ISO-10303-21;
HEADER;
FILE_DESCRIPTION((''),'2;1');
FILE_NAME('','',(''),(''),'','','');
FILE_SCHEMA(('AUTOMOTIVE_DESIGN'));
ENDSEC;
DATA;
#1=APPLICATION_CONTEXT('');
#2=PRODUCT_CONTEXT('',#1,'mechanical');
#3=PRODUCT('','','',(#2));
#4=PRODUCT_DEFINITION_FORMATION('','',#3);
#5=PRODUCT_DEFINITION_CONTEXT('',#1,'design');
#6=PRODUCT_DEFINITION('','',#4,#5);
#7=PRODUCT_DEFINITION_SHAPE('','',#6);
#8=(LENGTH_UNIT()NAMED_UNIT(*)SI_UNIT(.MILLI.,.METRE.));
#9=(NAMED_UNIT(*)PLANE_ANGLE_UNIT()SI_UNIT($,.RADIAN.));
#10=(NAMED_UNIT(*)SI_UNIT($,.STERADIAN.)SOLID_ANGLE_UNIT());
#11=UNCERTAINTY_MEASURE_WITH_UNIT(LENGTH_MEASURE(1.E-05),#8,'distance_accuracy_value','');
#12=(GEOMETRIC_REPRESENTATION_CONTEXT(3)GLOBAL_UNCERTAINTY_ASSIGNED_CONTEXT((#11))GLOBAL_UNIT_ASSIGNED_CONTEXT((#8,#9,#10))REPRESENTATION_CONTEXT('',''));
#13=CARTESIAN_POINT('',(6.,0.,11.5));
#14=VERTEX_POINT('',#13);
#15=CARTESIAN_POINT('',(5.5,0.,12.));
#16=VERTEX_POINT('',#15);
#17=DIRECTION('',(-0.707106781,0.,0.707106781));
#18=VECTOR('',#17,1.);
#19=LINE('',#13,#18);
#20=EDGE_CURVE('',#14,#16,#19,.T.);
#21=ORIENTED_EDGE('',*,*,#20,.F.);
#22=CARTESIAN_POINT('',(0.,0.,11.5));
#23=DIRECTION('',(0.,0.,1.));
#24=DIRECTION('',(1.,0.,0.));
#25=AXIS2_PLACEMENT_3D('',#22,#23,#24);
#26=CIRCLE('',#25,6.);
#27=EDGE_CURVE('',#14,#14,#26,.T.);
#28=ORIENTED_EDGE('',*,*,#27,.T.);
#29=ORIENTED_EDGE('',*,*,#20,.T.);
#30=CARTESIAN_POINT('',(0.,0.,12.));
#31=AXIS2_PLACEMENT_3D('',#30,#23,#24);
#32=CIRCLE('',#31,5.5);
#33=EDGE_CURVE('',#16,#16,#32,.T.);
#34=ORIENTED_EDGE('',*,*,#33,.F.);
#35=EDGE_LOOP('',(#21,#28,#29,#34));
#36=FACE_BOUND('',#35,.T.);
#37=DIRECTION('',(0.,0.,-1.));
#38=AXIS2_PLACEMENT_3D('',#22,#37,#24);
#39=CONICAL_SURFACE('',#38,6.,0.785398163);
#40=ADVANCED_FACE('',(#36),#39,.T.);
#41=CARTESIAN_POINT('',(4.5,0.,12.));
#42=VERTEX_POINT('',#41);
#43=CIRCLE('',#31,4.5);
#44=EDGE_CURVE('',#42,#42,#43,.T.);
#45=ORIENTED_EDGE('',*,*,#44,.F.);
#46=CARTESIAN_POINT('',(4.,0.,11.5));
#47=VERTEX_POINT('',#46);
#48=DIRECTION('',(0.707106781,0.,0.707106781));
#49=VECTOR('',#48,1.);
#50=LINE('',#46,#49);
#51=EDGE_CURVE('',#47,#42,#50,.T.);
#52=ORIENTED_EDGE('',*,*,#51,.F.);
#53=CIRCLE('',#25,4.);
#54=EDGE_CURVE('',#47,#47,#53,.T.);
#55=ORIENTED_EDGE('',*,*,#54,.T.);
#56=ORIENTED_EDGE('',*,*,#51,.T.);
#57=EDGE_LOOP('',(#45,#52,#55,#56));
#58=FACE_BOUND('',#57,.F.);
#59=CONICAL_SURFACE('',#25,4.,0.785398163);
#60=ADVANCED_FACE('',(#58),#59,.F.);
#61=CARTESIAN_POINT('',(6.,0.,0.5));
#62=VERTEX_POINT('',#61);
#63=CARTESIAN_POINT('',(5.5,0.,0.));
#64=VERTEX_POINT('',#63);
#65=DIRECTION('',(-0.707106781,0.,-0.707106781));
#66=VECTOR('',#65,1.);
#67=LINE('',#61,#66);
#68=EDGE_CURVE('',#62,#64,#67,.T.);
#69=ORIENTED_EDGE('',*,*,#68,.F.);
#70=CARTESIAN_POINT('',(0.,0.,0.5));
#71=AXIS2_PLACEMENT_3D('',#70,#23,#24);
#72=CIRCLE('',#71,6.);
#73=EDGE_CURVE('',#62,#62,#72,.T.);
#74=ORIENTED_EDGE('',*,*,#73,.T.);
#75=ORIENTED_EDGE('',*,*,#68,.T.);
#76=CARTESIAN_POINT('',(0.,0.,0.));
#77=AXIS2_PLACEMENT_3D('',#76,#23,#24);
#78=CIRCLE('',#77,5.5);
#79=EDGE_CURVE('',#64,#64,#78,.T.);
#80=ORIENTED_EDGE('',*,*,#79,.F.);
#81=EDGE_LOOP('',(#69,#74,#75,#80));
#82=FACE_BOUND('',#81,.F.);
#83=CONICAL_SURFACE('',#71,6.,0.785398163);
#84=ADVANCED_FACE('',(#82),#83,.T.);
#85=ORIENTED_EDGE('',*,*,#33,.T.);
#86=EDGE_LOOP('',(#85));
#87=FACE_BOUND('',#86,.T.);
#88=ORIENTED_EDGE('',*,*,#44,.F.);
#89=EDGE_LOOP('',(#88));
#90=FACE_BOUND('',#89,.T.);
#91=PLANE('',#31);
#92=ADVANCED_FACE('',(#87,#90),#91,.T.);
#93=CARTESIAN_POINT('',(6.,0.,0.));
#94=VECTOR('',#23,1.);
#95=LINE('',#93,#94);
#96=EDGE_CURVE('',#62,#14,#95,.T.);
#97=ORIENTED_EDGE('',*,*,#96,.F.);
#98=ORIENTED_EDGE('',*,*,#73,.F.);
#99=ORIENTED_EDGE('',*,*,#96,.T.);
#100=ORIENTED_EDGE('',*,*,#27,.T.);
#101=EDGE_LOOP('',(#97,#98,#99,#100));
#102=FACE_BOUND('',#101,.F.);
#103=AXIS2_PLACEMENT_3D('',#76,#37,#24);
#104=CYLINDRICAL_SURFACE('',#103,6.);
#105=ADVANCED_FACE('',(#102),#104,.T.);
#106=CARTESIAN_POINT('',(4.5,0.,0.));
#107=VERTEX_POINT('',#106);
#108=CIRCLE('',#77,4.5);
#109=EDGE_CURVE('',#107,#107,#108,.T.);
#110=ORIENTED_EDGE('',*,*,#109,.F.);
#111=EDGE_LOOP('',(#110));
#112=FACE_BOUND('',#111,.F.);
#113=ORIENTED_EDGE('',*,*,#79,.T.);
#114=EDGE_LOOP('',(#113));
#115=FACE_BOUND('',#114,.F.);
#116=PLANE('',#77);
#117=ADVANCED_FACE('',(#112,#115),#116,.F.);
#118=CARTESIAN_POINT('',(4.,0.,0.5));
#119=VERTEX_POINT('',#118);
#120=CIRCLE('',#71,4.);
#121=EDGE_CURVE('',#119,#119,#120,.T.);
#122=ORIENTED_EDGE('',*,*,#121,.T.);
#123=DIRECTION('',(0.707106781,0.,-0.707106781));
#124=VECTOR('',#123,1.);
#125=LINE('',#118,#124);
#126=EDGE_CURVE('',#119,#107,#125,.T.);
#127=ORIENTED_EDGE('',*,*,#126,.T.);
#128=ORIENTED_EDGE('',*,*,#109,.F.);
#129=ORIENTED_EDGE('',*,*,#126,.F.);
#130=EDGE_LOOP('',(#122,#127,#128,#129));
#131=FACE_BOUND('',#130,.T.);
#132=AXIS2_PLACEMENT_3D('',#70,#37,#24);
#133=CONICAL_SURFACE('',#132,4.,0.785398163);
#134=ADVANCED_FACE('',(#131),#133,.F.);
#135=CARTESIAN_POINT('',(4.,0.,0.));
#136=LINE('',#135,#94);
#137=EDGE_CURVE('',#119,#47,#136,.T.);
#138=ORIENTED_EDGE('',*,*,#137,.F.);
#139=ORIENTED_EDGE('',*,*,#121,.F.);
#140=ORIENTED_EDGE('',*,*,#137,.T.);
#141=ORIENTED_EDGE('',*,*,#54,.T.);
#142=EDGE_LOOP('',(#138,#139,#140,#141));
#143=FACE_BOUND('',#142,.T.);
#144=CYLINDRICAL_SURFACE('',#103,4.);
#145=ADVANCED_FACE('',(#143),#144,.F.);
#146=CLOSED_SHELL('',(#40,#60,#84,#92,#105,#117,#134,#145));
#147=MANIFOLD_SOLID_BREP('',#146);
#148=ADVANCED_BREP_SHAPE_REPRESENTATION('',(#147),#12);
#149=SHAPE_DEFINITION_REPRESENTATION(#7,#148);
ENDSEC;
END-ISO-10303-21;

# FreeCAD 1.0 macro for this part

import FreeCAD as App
import Part
import Sketcher
Q = App.Units.Quantity


def edges_at(feature, points):
    """Names of the edges that pass closest to the given points."""
    edges = feature.Shape.Edges
    near = lambda p: min(range(len(edges)), key=lambda i: edges[i].distToShape(Part.Vertex(*p))[0])
    return sorted({f"Edge{near(p) + 1}" for p in points})

doc = App.newDocument("Part")
body = doc.addObject("PartDesign::Body", "Body")

sketch1 = doc.addObject("Sketcher::SketchObject", "Sketch")
body.addObject(sketch1)
sketch1.AttachmentSupport = (doc.XY_Plane, [""])
sketch1.MapMode = "FlatFace"
sketch1.addGeometry([
    Part.Circle(App.Vector(0, 0, 0), App.Vector(0, 0, 1), 6),
    Part.Circle(App.Vector(0, 0, 0), App.Vector(0, 0, 1), 4),
], False)
sketch1.addConstraint([
    Sketcher.Constraint("Coincident", 0, 3, -1, 1),
    Sketcher.Constraint("Coincident", 1, 3, -1, 1),
    Sketcher.Constraint("Diameter", 0, Q("12 mm")),
    Sketcher.Constraint("Diameter", 1, Q("8 mm")),
])
pad1 = doc.addObject("PartDesign::Pad", "Pad")
body.addObject(pad1)
pad1.Profile = sketch1
pad1.Length = 12
doc.recompute()

chamfer = doc.addObject("PartDesign::Chamfer", "Chamfer")
body.addObject(chamfer)
chamfer.Base = (pad1, edges_at(pad1, [
    (-6, 0, 12),
    (-6, 0, 0),
    (-4, 0, 12),
    (-4, 0, 0),
]))
chamfer.Size = 0.5

doc.recompute()
